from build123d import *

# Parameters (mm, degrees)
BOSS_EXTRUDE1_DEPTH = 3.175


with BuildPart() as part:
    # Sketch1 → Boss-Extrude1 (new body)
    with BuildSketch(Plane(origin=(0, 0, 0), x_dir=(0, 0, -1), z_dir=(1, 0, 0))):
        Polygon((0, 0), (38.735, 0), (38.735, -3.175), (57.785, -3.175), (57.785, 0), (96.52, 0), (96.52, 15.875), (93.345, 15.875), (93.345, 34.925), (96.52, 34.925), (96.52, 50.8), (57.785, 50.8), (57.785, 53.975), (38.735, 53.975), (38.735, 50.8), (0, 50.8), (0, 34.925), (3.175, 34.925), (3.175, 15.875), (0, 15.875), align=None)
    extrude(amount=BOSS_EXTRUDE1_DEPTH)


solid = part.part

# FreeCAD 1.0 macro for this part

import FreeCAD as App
import Part
import Sketcher

V = App.Vector
Q = App.Units.Quantity

doc = App.newDocument("Part")
params = doc.addObject("Spreadsheet::Sheet", "Params")
for row, (alias, value) in enumerate([
    ("sketch1_width", "0.75 in"),
    ("pad1_length", "0.125 in"),
], start=1):
    params.set(f"A{row}", alias)
    params.set(f"B{row}", "=" + value)
    params.setAlias(f"B{row}", alias)

body = doc.addObject("PartDesign::Body", "Body")

# Sketch on YZ plane
sketch1 = doc.addObject("Sketcher::SketchObject", "Sketch")
body.addObject(sketch1)
sketch1.AttachmentSupport = (doc.YZ_Plane, [""])
sketch1.MapMode = "FlatFace"
sketch1.addGeometry([
    Part.LineSegment(V(0, 0, 0), V(0, -38.7, 0)),  # 0
    Part.LineSegment(V(0, -38.7, 0), V(-3.2, -38.7, 0)),  # 1
    Part.LineSegment(V(-3.2, -38.7, 0), V(-3.2, -57.8, 0)),  # 2
    Part.LineSegment(V(-3.2, -57.8, 0), V(0, -57.8, 0)),  # 3
    Part.LineSegment(V(0, -57.8, 0), V(0, -96.5, 0)),  # 4
    Part.LineSegment(V(0, -96.5, 0), V(15.9, -96.5, 0)),  # 5
    Part.LineSegment(V(15.9, -96.5, 0), V(15.9, -93.3, 0)),  # 6
    Part.LineSegment(V(15.9, -93.3, 0), V(34.9, -93.3, 0)),  # 7
    Part.LineSegment(V(34.9, -93.3, 0), V(34.9, -96.5, 0)),  # 8
    Part.LineSegment(V(34.9, -96.5, 0), V(50.8, -96.5, 0)),  # 9
    Part.LineSegment(V(50.8, -96.5, 0), V(50.8, -57.8, 0)),  # 10
    Part.LineSegment(V(50.8, -57.8, 0), V(54, -57.8, 0)),  # 11
    Part.LineSegment(V(54, -57.8, 0), V(54, -38.7, 0)),  # 12
    Part.LineSegment(V(54, -38.7, 0), V(50.8, -38.7, 0)),  # 13
    Part.LineSegment(V(50.8, -38.7, 0), V(50.8, 0, 0)),  # 14
    Part.LineSegment(V(50.8, 0, 0), V(34.9, 0, 0)),  # 15
    Part.LineSegment(V(34.9, 0, 0), V(34.9, -3.2, 0)),  # 16
    Part.LineSegment(V(34.9, -3.2, 0), V(15.9, -3.2, 0)),  # 17
    Part.LineSegment(V(15.9, -3.2, 0), V(15.9, 0, 0)),  # 18
    Part.LineSegment(V(15.9, 0, 0), V(0, 0, 0)),  # 19
], False)
sketch1.addConstraint([
    Sketcher.Constraint("Coincident", 0, 2, 1, 1),
    Sketcher.Constraint("Coincident", 1, 2, 2, 1),
    Sketcher.Constraint("Coincident", 2, 2, 3, 1),
    Sketcher.Constraint("Coincident", 3, 2, 4, 1),
    Sketcher.Constraint("Coincident", 4, 2, 5, 1),
    Sketcher.Constraint("Coincident", 5, 2, 6, 1),
    Sketcher.Constraint("Coincident", 6, 2, 7, 1),
    Sketcher.Constraint("Coincident", 7, 2, 8, 1),
    Sketcher.Constraint("Coincident", 8, 2, 9, 1),
    Sketcher.Constraint("Coincident", 9, 2, 10, 1),
    Sketcher.Constraint("Coincident", 10, 2, 11, 1),
    Sketcher.Constraint("Coincident", 11, 2, 12, 1),
    Sketcher.Constraint("Coincident", 12, 2, 13, 1),
    Sketcher.Constraint("Coincident", 13, 2, 14, 1),
    Sketcher.Constraint("Coincident", 14, 2, 15, 1),
    Sketcher.Constraint("Coincident", 15, 2, 16, 1),
    Sketcher.Constraint("Coincident", 16, 2, 17, 1),
    Sketcher.Constraint("Coincident", 17, 2, 18, 1),
    Sketcher.Constraint("Coincident", 18, 2, 19, 1),
    Sketcher.Constraint("Coincident", 19, 2, 0, 1),
    Sketcher.Constraint("Vertical", 0),
    Sketcher.Constraint("Horizontal", 1),
    Sketcher.Constraint("Vertical", 2),
    Sketcher.Constraint("Horizontal", 3),
    Sketcher.Constraint("Vertical", 4),
    Sketcher.Constraint("Horizontal", 5),
    Sketcher.Constraint("Vertical", 6),
    Sketcher.Constraint("Horizontal", 7),
    Sketcher.Constraint("Vertical", 8),
    Sketcher.Constraint("Horizontal", 9),
    Sketcher.Constraint("Vertical", 10),
    Sketcher.Constraint("Horizontal", 11),
    Sketcher.Constraint("Vertical", 12),
    Sketcher.Constraint("Horizontal", 13),
    Sketcher.Constraint("Vertical", 14),
    Sketcher.Constraint("Horizontal", 15),
    Sketcher.Constraint("Vertical", 16),
    Sketcher.Constraint("Horizontal", 17),
    Sketcher.Constraint("Vertical", 18),
    Sketcher.Constraint("Horizontal", 19),
    Sketcher.Constraint("Coincident", 19, 2, -1, 1),
    Sketcher.Constraint("PointOnObject", 3, 2, -2),
    Sketcher.Constraint("PointOnObject", 14, 2, -1),
    Sketcher.Constraint("Horizontal", 5, 2, 8, 2),
    Sketcher.Constraint("Horizontal", 3, 2, 10, 2),
    Sketcher.Constraint("Horizontal", 1, 2, 12, 2),
    Sketcher.Constraint("Vertical", 10, 2, 13, 2),
    Sketcher.Constraint("Vertical", 8, 2, 15, 2),
    Sketcher.Constraint("Vertical", 6, 2, 17, 2),
    Sketcher.Constraint("Equal", 5, 9),
    Sketcher.Constraint("Equal", 3, 11),
    Sketcher.Constraint("Equal", 17, 2),
    Sketcher.Constraint("Equal", 0, 4),
    Sketcher.Constraint("Equal", 13, 6),
    Sketcher.Constraint("Equal", 8, 16),
    Sketcher.Constraint("DistanceX", -1, 1, 9, 2, Q("2 in")),
    Sketcher.Constraint("DistanceX", 7, 1, 7, 2, Q("0.75 in")),
    Sketcher.Constraint("DistanceY", 4, 2, -1, 1, Q("3.8 in")),
    Sketcher.Constraint("DistanceY", 6, 2, 3, 2, Q("1.4 in")),
])
sketch1.setExpression("Constraints[56]", "Params.sketch1_width")
pad1 = doc.addObject("PartDesign::Pad", "Pad")
body.addObject(pad1)
pad1.Profile = sketch1
pad1.setExpression("Length", "Params.pad1_length")

doc.recompute()
